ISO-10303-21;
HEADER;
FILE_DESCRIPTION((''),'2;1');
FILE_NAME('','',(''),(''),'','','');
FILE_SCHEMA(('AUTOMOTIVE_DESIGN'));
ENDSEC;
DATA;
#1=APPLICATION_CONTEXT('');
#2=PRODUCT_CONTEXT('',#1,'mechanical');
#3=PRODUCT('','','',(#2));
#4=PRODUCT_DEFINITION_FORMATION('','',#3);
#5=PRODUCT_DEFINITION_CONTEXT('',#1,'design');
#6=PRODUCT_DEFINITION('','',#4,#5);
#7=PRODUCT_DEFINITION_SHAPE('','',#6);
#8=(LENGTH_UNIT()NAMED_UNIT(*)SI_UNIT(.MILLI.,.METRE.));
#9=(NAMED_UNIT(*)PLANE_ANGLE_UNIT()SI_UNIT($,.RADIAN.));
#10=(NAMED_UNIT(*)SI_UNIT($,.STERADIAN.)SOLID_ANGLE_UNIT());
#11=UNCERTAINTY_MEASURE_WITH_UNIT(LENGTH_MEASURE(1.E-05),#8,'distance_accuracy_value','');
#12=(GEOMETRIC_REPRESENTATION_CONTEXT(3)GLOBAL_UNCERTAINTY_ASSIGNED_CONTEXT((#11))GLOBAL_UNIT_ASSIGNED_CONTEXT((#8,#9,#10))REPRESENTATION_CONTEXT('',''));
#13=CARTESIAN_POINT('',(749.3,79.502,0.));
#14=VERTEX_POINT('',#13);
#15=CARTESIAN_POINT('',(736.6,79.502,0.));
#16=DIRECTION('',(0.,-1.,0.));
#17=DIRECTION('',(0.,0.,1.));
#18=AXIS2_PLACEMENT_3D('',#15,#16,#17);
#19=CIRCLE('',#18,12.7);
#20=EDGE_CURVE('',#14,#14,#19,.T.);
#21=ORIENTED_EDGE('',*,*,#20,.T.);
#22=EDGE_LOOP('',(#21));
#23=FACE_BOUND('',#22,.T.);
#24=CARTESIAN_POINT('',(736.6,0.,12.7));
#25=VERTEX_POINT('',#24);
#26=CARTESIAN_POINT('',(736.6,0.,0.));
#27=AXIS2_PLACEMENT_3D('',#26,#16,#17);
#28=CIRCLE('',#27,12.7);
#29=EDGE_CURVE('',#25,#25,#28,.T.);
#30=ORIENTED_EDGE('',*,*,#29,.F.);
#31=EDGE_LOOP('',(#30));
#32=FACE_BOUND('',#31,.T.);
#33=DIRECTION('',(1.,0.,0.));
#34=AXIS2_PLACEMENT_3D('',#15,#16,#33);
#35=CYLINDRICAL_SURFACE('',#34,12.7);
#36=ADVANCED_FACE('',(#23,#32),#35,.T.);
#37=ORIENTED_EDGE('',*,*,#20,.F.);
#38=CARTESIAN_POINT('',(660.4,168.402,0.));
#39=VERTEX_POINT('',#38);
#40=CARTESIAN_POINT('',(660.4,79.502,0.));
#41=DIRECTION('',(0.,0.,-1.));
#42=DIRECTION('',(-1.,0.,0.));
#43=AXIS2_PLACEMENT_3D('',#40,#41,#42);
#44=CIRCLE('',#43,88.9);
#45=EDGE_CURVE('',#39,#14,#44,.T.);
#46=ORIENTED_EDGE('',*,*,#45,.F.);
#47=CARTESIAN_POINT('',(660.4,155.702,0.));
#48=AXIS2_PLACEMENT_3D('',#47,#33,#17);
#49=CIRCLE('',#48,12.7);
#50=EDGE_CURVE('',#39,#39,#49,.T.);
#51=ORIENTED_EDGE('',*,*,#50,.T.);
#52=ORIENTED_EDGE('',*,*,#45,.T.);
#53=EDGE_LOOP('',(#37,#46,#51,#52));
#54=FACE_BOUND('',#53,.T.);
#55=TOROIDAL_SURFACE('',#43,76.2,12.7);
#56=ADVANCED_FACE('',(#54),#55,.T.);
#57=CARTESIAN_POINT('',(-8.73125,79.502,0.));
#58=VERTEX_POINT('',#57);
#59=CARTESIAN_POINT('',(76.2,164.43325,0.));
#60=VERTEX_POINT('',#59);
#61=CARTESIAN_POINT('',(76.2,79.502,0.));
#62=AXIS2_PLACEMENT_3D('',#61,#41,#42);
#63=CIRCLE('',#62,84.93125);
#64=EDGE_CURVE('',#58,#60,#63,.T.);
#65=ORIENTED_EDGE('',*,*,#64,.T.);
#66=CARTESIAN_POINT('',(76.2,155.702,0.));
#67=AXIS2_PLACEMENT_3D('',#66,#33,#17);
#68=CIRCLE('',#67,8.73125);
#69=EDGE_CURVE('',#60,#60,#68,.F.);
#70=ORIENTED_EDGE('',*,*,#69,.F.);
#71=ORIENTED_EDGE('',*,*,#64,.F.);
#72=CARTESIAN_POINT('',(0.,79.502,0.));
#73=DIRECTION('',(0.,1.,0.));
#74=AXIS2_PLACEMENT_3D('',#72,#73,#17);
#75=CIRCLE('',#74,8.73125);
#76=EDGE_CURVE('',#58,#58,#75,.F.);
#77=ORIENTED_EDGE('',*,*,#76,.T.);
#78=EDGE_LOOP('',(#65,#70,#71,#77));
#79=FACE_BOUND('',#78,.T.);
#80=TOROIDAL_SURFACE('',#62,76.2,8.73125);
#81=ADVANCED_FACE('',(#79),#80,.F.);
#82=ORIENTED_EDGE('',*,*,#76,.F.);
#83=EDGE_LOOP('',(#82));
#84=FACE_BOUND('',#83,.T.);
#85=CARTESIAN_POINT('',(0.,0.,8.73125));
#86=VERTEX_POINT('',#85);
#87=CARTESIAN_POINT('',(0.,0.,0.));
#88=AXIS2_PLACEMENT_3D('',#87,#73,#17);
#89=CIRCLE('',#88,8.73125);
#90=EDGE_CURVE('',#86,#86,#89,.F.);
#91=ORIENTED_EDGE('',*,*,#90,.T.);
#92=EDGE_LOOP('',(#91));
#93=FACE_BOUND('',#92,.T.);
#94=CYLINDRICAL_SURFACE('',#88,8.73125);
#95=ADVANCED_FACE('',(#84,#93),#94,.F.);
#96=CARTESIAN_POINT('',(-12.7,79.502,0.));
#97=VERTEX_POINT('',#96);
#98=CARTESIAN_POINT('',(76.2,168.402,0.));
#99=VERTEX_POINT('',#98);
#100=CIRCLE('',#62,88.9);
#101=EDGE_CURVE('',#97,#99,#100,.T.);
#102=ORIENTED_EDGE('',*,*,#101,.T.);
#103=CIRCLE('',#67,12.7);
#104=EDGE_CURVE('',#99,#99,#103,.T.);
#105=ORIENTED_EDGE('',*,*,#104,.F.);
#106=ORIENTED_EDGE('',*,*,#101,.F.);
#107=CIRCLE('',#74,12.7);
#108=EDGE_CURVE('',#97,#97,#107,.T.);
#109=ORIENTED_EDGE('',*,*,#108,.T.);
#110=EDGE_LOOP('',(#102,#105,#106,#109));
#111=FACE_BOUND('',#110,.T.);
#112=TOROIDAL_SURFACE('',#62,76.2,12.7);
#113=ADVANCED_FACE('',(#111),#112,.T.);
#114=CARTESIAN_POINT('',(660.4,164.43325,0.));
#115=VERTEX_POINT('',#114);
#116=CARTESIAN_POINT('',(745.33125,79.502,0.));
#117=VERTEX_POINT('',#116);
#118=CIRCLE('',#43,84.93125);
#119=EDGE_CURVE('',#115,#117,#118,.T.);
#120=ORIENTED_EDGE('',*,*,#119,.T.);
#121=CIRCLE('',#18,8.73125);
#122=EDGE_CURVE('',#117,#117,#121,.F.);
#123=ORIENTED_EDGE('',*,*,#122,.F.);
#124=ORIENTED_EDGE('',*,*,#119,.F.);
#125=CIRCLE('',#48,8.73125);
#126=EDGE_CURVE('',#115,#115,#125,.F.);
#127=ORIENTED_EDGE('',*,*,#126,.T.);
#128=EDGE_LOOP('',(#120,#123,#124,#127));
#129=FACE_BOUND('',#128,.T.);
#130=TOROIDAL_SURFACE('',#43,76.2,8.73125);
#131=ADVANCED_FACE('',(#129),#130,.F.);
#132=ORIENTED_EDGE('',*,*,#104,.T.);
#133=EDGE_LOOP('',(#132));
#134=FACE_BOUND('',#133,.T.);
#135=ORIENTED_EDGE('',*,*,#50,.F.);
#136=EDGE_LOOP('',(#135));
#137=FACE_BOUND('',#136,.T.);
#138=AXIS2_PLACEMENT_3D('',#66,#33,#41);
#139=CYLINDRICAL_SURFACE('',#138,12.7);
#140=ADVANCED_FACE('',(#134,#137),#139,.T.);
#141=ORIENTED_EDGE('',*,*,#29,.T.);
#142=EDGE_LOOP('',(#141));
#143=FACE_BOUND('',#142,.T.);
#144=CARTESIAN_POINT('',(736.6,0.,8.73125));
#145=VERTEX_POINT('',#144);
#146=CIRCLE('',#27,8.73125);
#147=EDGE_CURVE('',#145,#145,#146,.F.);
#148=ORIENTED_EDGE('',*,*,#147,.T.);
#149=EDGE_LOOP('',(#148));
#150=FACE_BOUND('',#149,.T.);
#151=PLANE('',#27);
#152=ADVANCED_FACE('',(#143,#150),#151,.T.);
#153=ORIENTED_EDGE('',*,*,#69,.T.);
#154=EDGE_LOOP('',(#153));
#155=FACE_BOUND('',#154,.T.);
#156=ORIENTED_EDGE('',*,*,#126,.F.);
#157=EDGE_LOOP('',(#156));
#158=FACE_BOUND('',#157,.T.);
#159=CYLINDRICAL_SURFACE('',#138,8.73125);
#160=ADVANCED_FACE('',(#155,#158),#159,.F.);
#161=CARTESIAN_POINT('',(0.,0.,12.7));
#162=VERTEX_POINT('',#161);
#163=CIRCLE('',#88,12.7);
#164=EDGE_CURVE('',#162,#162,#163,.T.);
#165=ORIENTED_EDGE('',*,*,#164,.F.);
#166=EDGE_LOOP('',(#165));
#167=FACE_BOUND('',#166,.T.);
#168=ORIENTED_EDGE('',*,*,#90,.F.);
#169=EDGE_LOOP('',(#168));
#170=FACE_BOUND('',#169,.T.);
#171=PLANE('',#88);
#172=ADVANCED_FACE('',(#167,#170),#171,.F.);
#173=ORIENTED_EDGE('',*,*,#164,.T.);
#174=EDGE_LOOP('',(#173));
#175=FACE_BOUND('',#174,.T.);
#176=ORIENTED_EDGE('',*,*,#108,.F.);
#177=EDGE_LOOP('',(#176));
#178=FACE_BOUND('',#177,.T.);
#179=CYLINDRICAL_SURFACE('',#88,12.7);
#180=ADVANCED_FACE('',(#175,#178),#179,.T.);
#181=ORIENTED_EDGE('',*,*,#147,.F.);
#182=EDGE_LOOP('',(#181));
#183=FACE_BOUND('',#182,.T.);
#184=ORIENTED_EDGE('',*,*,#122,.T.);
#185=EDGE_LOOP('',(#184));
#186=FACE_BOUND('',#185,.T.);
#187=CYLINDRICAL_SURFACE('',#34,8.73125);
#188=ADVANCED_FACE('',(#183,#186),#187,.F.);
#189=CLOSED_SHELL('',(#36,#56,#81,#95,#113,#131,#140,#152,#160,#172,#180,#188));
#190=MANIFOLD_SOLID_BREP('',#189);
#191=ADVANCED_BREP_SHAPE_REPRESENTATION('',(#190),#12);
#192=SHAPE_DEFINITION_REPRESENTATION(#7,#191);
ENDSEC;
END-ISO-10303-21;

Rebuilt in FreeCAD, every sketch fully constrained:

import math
import FreeCAD as App
import Part
import Sketcher

V = App.Vector
Q = App.Units.Quantity

doc = App.newDocument("Part")
body = doc.addObject("PartDesign::Body", "Body")

# Sketch on XZ plane
sketch1 = body.newObject("Sketcher::SketchObject", "Sketch")
sketch1.AttachmentSupport = (doc.getObject("XZ_Plane"), [""])
sketch1.MapMode = "FlatFace"
sketch1.addGeometry([
    Part.Circle(V(0, 0, 0), V(0, 0, 1), 12.7),
    Part.Circle(V(0, 0, 0), V(0, 0, 1), 8.73125),
], False)
sketch1.addConstraint([
    Sketcher.Constraint("Coincident", 0, 3, -1, 1),
    Sketcher.Constraint("Coincident", 1, 3, -1, 1),
    Sketcher.Constraint("Diameter", 0, Q("1 in")),
    Sketcher.Constraint("Diameter", 1, Q("0.6875 in")),
])

# Sketch on XY plane
sketch2 = body.newObject("Sketcher::SketchObject", "Sketch001")
sketch2.AttachmentSupport = (doc.getObject("XY_Plane"), [""])
sketch2.MapMode = "FlatFace"
sketch2.addGeometry([
    Part.LineSegment(V(0, 0, 0), V(0, 79.502, 0)),  # 0
    Part.ArcOfCircle(Part.Circle(V(76.2, 79.502, 0), V(0, 0, 1), 76.2), math.radians(90), math.radians(180)),  # 1
    Part.LineSegment(V(76.2, 155.702, 0), V(660.4, 155.702, 0)),  # 2
    Part.ArcOfCircle(Part.Circle(V(660.4, 79.502, 0), V(0, 0, 1), 76.2), math.radians(0), math.radians(90)),  # 3
    Part.LineSegment(V(736.6, 79.502, 0), V(736.6, 0, 0)),  # 4
], False)
sketch2.addConstraint([
    Sketcher.Constraint("Tangent", 0, 2, 1, 2),
    Sketcher.Constraint("Tangent", 1, 1, 2, 1),
    Sketcher.Constraint("Tangent", 2, 2, 3, 2),
    Sketcher.Constraint("Tangent", 3, 1, 4, 1),
    Sketcher.Constraint("Vertical", 0),
    Sketcher.Constraint("Horizontal", 2),
    Sketcher.Constraint("Vertical", 4),
    Sketcher.Constraint("Coincident", 0, 1, -1, 1),
    Sketcher.Constraint("Equal", 1, 3),
    Sketcher.Constraint("PointOnObject", 4, 2, -1),
    Sketcher.Constraint("Radius", 1, Q("3 in")),
    Sketcher.Constraint("DistanceX", 2, 1, 2, 2, Q("23 in")),
    Sketcher.Constraint("DistanceY", 0, 1, 0, 2, Q("3.13 in")),
])
doc.recompute()

additivepipe = body.newObject("PartDesign::AdditivePipe", "AdditivePipe")
additivepipe.Profile = sketch1
additivepipe.Spine = (sketch2, ["Edge1", "Edge2", "Edge3", "Edge4", "Edge5"])

doc.recompute()
